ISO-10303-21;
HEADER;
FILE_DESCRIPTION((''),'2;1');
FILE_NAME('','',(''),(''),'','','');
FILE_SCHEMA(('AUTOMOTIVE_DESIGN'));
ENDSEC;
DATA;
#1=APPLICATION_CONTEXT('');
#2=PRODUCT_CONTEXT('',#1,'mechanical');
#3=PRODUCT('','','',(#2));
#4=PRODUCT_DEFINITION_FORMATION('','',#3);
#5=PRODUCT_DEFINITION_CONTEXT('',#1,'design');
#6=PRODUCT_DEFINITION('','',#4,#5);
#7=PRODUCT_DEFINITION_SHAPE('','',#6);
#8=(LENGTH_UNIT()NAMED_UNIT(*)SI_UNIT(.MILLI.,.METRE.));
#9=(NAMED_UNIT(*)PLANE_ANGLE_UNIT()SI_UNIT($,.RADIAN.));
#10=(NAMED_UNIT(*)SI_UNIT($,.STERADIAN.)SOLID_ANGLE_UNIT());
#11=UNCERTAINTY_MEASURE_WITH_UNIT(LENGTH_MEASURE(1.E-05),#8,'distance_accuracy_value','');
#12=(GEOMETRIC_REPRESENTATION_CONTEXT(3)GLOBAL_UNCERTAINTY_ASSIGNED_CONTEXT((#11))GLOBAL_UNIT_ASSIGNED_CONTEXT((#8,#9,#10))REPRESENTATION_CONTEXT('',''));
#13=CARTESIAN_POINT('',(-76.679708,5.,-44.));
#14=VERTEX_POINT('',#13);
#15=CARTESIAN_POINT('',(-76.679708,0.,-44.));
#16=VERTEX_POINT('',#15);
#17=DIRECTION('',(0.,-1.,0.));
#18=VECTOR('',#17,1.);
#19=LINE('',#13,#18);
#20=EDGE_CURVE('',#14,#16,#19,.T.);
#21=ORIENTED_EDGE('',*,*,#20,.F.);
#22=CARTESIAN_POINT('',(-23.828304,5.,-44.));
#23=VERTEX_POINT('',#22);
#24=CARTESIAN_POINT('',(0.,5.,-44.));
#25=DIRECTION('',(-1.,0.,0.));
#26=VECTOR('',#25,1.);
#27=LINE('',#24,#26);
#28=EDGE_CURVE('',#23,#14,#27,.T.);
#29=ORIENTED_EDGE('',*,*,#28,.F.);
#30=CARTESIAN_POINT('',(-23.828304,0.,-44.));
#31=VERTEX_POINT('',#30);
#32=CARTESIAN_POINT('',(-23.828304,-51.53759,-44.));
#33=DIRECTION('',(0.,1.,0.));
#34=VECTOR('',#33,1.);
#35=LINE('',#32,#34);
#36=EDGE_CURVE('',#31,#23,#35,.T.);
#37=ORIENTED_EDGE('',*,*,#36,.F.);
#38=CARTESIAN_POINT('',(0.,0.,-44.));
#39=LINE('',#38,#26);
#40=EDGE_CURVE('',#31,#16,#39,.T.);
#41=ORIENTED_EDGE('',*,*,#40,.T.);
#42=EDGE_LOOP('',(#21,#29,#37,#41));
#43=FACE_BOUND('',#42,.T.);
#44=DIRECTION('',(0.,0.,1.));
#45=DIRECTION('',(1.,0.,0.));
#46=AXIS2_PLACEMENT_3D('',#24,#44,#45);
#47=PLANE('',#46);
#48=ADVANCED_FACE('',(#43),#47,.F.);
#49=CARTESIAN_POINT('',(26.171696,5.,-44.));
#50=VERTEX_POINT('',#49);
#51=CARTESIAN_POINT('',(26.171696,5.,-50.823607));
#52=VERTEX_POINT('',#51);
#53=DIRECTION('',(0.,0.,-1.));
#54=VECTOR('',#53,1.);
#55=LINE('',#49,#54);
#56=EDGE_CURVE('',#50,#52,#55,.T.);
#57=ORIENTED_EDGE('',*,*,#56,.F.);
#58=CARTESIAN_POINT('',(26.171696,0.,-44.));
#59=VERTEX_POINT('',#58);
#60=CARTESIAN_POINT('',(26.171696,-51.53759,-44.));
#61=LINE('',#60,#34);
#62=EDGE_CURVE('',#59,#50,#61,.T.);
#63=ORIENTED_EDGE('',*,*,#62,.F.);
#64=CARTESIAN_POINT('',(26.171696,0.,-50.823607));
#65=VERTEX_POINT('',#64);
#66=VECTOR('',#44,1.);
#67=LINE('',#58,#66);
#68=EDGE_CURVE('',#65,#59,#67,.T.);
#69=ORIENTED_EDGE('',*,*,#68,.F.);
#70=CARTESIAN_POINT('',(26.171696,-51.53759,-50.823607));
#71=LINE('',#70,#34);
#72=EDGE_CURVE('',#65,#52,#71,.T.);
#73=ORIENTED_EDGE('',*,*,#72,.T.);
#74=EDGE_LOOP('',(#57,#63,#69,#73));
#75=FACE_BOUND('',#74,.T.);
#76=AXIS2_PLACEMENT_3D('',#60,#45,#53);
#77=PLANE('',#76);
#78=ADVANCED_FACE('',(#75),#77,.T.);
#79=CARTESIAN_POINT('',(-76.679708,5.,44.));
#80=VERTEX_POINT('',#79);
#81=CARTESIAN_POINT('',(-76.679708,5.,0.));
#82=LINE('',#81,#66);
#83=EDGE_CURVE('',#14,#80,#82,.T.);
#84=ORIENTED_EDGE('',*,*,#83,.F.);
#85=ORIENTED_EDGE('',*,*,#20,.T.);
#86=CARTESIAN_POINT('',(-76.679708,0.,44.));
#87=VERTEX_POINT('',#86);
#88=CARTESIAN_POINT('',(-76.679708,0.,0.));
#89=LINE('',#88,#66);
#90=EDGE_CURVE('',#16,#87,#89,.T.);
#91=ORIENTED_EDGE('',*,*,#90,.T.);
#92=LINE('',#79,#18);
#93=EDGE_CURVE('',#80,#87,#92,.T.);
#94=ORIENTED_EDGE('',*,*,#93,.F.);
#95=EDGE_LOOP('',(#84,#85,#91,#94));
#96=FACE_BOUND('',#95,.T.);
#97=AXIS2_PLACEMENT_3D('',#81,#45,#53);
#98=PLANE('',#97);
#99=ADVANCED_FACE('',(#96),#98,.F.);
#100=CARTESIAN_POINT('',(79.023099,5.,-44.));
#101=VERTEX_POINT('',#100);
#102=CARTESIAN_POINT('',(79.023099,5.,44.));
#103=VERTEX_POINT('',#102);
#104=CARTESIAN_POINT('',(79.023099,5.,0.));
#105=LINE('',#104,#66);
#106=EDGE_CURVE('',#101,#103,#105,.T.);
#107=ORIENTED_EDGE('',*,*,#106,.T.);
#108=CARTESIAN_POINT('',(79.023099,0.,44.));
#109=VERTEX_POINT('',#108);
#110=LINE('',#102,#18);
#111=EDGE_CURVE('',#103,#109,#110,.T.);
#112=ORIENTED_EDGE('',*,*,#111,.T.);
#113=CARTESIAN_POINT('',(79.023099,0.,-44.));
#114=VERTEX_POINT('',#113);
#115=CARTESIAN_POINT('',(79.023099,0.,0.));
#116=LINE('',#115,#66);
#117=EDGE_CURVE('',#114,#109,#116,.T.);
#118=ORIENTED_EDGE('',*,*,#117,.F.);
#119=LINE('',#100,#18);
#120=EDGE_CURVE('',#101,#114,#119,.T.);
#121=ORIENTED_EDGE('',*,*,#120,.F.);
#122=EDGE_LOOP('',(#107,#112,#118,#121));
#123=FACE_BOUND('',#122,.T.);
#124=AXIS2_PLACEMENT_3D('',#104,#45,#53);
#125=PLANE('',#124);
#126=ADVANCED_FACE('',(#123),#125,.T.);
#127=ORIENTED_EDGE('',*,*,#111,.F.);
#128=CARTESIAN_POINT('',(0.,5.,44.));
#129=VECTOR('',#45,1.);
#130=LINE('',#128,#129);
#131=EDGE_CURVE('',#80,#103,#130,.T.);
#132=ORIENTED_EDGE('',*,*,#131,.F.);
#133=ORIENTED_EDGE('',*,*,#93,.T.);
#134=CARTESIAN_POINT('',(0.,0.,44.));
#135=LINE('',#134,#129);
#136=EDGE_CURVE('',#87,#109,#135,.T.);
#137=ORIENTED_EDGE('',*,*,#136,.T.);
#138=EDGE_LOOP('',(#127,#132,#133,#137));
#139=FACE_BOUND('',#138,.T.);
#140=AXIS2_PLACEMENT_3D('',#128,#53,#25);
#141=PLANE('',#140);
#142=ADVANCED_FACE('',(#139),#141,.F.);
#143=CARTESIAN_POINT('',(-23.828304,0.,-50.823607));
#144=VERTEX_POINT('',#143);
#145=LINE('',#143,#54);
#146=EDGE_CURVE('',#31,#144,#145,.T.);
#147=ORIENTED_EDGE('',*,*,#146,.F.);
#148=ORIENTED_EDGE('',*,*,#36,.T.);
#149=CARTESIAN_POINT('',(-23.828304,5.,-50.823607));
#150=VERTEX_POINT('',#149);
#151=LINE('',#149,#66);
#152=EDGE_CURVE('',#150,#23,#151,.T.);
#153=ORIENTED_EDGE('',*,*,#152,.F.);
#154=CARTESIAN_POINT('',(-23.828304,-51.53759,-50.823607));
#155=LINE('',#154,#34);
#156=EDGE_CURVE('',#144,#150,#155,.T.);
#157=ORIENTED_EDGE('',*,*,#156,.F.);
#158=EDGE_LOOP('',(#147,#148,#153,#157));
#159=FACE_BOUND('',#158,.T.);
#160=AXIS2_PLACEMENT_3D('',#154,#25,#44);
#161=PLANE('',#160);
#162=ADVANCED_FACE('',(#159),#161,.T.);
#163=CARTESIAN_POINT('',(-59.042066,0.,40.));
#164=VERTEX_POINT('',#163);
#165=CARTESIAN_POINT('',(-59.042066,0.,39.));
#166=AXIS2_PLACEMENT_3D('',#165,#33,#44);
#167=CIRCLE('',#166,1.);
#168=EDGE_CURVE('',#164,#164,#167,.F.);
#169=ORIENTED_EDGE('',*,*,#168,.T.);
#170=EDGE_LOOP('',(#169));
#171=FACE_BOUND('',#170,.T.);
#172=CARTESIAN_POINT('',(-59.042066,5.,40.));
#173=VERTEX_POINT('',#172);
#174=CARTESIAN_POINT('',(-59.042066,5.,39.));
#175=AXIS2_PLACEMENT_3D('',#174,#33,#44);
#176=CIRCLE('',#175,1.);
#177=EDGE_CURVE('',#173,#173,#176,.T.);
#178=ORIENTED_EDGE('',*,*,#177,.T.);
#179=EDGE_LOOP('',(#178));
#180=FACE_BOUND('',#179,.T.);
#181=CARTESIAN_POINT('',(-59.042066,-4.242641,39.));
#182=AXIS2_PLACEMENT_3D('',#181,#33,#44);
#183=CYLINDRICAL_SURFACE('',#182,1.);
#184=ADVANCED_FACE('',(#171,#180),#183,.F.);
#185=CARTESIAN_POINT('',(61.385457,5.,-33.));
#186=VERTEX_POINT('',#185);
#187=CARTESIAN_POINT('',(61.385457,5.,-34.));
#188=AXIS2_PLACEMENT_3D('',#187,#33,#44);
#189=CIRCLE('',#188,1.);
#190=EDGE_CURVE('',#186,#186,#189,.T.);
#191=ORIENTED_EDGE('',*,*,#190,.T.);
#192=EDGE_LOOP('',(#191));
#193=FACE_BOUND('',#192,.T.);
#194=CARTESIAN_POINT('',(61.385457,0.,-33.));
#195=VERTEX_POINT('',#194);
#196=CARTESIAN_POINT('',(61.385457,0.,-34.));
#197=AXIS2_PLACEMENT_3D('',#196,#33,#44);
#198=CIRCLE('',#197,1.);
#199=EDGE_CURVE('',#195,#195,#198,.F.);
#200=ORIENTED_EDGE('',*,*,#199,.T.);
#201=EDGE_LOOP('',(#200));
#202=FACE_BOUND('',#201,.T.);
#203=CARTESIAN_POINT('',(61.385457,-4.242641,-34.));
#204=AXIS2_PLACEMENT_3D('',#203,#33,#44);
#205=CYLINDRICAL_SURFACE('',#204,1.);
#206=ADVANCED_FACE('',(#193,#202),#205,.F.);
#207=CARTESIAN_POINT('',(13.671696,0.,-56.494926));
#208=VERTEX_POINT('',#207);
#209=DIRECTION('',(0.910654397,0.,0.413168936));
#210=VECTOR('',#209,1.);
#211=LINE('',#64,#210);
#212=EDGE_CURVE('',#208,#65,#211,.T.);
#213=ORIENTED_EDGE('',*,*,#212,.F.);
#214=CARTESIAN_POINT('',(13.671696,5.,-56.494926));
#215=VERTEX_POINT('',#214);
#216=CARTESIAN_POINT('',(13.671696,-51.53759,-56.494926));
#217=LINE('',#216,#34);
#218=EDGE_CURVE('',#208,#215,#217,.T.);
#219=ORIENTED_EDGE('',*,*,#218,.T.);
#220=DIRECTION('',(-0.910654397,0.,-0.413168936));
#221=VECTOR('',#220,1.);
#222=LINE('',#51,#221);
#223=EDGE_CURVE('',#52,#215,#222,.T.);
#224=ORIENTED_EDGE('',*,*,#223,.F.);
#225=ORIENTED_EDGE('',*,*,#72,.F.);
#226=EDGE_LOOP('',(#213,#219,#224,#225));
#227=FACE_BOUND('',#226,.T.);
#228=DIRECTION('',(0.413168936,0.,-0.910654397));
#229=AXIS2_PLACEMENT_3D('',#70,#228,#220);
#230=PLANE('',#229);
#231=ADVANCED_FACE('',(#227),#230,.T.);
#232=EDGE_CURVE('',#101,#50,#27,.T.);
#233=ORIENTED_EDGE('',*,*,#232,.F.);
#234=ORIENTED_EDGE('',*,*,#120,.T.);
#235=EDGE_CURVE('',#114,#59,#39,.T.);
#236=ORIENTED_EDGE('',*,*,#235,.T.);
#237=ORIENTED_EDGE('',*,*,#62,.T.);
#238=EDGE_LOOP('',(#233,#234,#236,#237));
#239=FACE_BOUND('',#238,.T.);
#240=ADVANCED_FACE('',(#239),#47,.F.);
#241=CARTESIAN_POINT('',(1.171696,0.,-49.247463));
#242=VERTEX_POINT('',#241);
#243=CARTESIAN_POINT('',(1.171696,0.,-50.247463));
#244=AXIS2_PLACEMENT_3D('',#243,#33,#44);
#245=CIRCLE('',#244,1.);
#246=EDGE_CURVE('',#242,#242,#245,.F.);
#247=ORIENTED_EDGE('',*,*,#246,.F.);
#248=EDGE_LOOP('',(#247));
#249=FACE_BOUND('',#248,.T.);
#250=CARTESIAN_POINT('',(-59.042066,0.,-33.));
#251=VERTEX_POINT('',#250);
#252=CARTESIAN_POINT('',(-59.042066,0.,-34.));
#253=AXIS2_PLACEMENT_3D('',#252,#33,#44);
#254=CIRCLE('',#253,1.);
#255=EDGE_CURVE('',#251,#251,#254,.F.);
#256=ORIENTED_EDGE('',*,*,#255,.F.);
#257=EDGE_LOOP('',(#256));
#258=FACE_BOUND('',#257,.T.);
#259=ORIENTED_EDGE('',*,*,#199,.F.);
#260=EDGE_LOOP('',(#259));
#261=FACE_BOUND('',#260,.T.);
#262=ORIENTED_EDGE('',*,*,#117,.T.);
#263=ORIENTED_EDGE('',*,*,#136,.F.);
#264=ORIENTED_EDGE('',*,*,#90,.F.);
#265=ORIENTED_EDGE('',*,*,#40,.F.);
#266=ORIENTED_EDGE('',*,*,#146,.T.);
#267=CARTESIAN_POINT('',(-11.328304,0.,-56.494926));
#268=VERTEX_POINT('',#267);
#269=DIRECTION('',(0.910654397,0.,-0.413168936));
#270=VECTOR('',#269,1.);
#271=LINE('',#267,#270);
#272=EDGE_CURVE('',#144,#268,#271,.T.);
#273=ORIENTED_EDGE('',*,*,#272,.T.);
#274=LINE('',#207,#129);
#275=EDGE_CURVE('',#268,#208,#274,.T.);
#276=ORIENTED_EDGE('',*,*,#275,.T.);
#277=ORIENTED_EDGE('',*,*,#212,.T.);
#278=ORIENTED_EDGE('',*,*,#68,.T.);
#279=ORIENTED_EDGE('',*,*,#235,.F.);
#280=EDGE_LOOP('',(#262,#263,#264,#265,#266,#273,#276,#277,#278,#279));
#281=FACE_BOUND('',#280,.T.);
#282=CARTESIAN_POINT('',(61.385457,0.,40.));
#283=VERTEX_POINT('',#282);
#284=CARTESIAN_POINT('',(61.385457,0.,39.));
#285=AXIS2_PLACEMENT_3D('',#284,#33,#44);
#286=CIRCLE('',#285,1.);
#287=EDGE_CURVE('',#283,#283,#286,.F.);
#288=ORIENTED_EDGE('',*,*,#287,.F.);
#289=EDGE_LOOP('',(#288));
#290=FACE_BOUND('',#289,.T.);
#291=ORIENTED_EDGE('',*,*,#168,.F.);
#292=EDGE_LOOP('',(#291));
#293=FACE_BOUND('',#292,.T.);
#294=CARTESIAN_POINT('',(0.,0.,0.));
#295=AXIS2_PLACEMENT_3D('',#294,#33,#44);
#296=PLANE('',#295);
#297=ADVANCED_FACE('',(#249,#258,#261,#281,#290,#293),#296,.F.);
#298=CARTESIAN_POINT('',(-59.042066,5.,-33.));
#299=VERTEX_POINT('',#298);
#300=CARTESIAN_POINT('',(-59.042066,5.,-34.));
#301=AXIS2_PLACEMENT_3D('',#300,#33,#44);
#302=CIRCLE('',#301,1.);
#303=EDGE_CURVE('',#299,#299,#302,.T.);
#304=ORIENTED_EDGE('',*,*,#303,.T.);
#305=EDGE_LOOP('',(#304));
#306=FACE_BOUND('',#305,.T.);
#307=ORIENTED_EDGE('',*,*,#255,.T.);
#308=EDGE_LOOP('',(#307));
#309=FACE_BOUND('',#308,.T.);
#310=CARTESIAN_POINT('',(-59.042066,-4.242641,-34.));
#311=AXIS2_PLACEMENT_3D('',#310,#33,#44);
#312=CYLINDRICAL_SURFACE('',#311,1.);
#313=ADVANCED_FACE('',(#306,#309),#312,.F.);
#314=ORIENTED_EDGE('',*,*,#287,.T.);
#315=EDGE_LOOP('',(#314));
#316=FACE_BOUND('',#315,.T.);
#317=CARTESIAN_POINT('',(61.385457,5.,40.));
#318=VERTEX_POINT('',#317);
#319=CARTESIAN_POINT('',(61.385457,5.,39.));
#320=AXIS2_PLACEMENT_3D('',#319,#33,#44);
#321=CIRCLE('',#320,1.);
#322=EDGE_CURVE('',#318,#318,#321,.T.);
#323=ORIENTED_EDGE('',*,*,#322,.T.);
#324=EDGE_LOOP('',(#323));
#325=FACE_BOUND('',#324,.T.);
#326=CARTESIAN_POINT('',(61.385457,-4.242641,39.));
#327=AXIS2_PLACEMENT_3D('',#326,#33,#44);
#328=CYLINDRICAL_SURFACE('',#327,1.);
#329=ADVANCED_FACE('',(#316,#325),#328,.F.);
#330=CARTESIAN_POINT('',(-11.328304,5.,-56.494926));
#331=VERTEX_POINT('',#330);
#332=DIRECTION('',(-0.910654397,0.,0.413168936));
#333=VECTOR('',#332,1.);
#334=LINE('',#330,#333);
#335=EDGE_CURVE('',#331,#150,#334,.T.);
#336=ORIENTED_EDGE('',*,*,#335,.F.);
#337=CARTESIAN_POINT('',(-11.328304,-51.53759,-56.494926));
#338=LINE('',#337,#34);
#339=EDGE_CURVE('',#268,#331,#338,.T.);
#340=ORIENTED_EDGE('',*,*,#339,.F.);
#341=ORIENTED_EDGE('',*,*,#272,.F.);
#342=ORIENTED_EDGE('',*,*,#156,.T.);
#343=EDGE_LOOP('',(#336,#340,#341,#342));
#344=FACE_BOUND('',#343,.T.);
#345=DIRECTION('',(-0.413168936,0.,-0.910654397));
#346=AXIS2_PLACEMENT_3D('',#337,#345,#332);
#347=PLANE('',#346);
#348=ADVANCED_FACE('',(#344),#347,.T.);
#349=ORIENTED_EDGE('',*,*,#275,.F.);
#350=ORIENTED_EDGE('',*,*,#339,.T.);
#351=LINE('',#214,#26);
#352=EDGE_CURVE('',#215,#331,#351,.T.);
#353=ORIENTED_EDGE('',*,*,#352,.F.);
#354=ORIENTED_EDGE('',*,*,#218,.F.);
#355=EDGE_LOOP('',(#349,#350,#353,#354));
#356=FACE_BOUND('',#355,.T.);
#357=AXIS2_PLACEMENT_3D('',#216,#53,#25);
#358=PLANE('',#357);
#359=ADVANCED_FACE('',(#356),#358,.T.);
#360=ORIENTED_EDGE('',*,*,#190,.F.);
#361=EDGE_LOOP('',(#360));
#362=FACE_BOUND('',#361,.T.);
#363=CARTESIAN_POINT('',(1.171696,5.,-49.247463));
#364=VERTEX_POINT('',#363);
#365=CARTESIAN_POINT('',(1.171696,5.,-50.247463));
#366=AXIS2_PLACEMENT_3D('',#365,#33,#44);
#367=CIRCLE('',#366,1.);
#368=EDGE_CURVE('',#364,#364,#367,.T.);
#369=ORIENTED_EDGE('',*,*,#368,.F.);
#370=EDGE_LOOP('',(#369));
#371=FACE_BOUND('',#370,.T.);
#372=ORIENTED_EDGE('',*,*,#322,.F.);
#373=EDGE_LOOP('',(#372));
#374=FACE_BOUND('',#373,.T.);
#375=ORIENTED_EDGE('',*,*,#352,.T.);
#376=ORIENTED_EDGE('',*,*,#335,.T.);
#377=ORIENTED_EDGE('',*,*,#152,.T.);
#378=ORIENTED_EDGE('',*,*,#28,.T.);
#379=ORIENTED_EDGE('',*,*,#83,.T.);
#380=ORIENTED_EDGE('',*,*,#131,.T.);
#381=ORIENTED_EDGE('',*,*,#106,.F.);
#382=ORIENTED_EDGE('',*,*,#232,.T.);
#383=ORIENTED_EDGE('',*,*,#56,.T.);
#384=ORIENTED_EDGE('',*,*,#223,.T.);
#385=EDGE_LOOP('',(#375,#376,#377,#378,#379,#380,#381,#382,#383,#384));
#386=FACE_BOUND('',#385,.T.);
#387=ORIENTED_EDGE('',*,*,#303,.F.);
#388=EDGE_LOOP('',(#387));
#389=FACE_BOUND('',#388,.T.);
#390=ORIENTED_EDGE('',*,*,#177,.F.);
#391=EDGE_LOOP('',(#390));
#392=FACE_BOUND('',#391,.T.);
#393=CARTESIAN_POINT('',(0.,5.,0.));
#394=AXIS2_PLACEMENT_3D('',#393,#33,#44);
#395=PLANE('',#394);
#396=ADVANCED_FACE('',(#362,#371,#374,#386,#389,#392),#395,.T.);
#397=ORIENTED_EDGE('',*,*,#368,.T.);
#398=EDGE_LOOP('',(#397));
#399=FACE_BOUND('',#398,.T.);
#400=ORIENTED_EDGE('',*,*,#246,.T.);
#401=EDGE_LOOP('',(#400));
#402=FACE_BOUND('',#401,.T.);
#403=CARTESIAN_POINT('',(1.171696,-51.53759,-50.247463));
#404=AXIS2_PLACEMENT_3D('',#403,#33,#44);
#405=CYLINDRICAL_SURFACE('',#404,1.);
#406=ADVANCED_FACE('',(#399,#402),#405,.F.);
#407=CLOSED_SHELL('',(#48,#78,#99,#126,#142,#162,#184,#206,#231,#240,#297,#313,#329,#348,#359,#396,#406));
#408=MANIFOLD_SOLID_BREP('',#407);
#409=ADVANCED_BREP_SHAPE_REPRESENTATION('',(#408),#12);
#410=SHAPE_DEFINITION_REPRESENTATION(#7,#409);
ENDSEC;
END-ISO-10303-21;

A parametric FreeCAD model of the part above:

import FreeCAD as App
import Part
import Sketcher
Q = App.Units.Quantity


def add_polygon(sketch, points):
    """Adds a closed chain of lines whose ends are joined by coincident constraints."""
    first, n = sketch.GeometryCount, len(points)
    for a, b in zip(points, points[1:] + points[:1]):
        sketch.addGeometry(Part.LineSegment(App.Vector(*a, 0), App.Vector(*b, 0)), False)
    for i in range(n):
        sketch.addConstraint(Sketcher.Constraint("Coincident", first + i, 2, first + (i + 1) % n, 1))

doc = App.newDocument("Part")
body = doc.addObject("PartDesign::Body", "Body")

# Sketch on XZ plane
sketch1 = doc.addObject("Sketcher::SketchObject", "Sketch")
body.addObject(sketch1)
sketch1.AttachmentSupport = (doc.XZ_Plane, [""])
sketch1.MapMode = "FlatFace"
add_polygon(sketch1, [(-76.7, -44), (-76.7, 44), (79, 44), (79, -44)])  # lines 0-3
sketch1.addGeometry(Part.Circle(App.Vector(-59, 39, 0), App.Vector(0, 0, 1), 1.5), False)  # 4
sketch1.addGeometry(Part.Circle(App.Vector(61.4, 39, 0), App.Vector(0, 0, 1), 1.5), False)  # 5
sketch1.addGeometry(Part.Circle(App.Vector(-59, -34, 0), App.Vector(0, 0, 1), 1.5), False)  # 6
sketch1.addGeometry(Part.Circle(App.Vector(61.4, -34, 0), App.Vector(0, 0, 1), 1.5), False)  # 7
sketch1.addConstraint(Sketcher.Constraint("Vertical", 0))
sketch1.addConstraint(Sketcher.Constraint("Horizontal", 1))
sketch1.addConstraint(Sketcher.Constraint("Vertical", 2))
sketch1.addConstraint(Sketcher.Constraint("Horizontal", 3))
sketch1.addConstraint(Sketcher.Constraint("Equal", 4, 5))
sketch1.addConstraint(Sketcher.Constraint("Equal", 5, 6))
sketch1.addConstraint(Sketcher.Constraint("Equal", 6, 7))
sketch1.addConstraint(Sketcher.Constraint("Horizontal", 4, 3, 5, 3))
sketch1.addConstraint(Sketcher.Constraint("Horizontal", 6, 3, 7, 3))
sketch1.addConstraint(Sketcher.Constraint("Vertical", 4, 3, 6, 3))
sketch1.addConstraint(Sketcher.Constraint("Vertical", 5, 3, 7, 3))
sketch1.addConstraint(Sketcher.Constraint("Diameter", 4, Q("3 mm")))
sketch1.addConstraint(Sketcher.Constraint("DistanceY", 0, 1, 0, 2, Q("88 mm")))
sketch1.addConstraint(Sketcher.Constraint("DistanceY", -1, 1, 4, 3, Q("39 mm")))
sketch1.addConstraint(Sketcher.Constraint("DistanceY", 6, 3, -1, 1, Q("34 mm")))
sketch1.addConstraint(Sketcher.Constraint("DistanceY", -1, 1, 0, 2, Q("44 mm")))
sketch1.addConstraint(Sketcher.Constraint("DistanceX", -1, 1, 1, 2, Q("79.023099 mm")))
sketch1.addConstraint(Sketcher.Constraint("DistanceX", 1, 1, 1, 2, Q("155.702807 mm")))
sketch1.addConstraint(Sketcher.Constraint("DistanceX", 4, 3, -1, 1, Q("59.042066 mm")))
sketch1.addConstraint(Sketcher.Constraint("DistanceX", -1, 1, 5, 3, Q("61.385457 mm")))
pad1 = doc.addObject("PartDesign::Pad", "Pad")
body.addObject(pad1)
pad1.Profile = sketch1
pad1.Length = 5
pad1.Reversed = True

# Sketch on XZ plane
sketch2 = doc.addObject("Sketcher::SketchObject", "Sketch001")
body.addObject(sketch2)
sketch2.AttachmentSupport = (doc.XZ_Plane, [""])
sketch2.MapMode = "FlatFace"
sketch2.AttachmentOffset = App.Placement(App.Vector(0, 0, -5), App.Rotation())
add_polygon(sketch2, [(-23.8, -44), (26.2, -44), (26.2, -50.8), (13.7, -56.5), (-11.3, -56.5), (-23.8, -50.8)])  # lines 0-5
sketch2.addGeometry(Part.Circle(App.Vector(1.2, -50.2, 0), App.Vector(0, 0, 1), 1), False)  # 6
sketch2.addConstraint(Sketcher.Constraint("Horizontal", 0))
sketch2.addConstraint(Sketcher.Constraint("Vertical", 1))
sketch2.addConstraint(Sketcher.Constraint("Horizontal", 3))
sketch2.addConstraint(Sketcher.Constraint("Vertical", 5))
sketch2.addConstraint(Sketcher.Constraint("Horizontal", 1, 2, 4, 2))
sketch2.addConstraint(Sketcher.Constraint("Equal", 2, 4))
sketch2.addConstraint(Sketcher.Constraint("Diameter", 6, Q("2 mm")))
sketch2.addConstraint(Sketcher.Constraint("DistanceX", 0, 1, 0, 2, Q("50 mm")))
sketch2.addConstraint(Sketcher.Constraint("DistanceX", 3, 2, 3, 1, Q("25 mm")))
sketch2.addConstraint(Sketcher.Constraint("DistanceY", 0, 2, -1, 1, Q("44 mm")))
sketch2.addConstraint(Sketcher.Constraint("DistanceX", 6, 3, 0, 2, Q("25 mm")))
sketch2.addConstraint(Sketcher.Constraint("DistanceY", 1, 2, 1, 1, Q("6.823607 mm")))
sketch2.addConstraint(Sketcher.Constraint("DistanceY", 2, 2, 1, 2, Q("5.671319 mm")))
sketch2.addConstraint(Sketcher.Constraint("DistanceX", -1, 1, 6, 3, Q("1.171696 mm")))
sketch2.addConstraint(Sketcher.Constraint("DistanceY", 6, 3, -1, 1, Q("50.247463 mm")))
pad2 = doc.addObject("PartDesign::Pad", "Pad001")
body.addObject(pad2)
pad2.Profile = sketch2
pad2.Length = 5

# Sketch on XZ plane
sketch3 = doc.addObject("Sketcher::SketchObject", "Sketch002")
body.addObject(sketch3)
sketch3.AttachmentSupport = (doc.XZ_Plane, [""])
sketch3.MapMode = "FlatFace"
sketch3.AttachmentOffset = App.Placement(App.Vector(0, 0, -5), App.Rotation())
sketch3.addGeometry(Part.Circle(App.Vector(61.4, -34, 0), App.Vector(0, 0, 1), 1.5), False)
sketch3.addGeometry(Part.Circle(App.Vector(61.4, -34, 0), App.Vector(0, 0, 1), 1), False)
sketch3.addGeometry(Part.Circle(App.Vector(61.4, 39, 0), App.Vector(0, 0, 1), 1.5), False)
sketch3.addGeometry(Part.Circle(App.Vector(61.4, 39, 0), App.Vector(0, 0, 1), 1), False)
sketch3.addGeometry(Part.Circle(App.Vector(-59, 39, 0), App.Vector(0, 0, 1), 1.5), False)
sketch3.addGeometry(Part.Circle(App.Vector(-59, 39, 0), App.Vector(0, 0, 1), 1), False)
sketch3.addGeometry(Part.Circle(App.Vector(-59, -34, 0), App.Vector(0, 0, 1), 1.5), False)
sketch3.addGeometry(Part.Circle(App.Vector(-59, -34, 0), App.Vector(0, 0, 1), 1), False)
sketch3.addConstraint(Sketcher.Constraint("Coincident", 1, 3, 0, 3))
sketch3.addConstraint(Sketcher.Constraint("Coincident", 3, 3, 2, 3))
sketch3.addConstraint(Sketcher.Constraint("Coincident", 5, 3, 4, 3))
sketch3.addConstraint(Sketcher.Constraint("Coincident", 7, 3, 6, 3))
sketch3.addConstraint(Sketcher.Constraint("Equal", 0, 2))
sketch3.addConstraint(Sketcher.Constraint("Equal", 1, 3))
sketch3.addConstraint(Sketcher.Constraint("Equal", 2, 4))
sketch3.addConstraint(Sketcher.Constraint("Equal", 3, 5))
sketch3.addConstraint(Sketcher.Constraint("Equal", 4, 6))
sketch3.addConstraint(Sketcher.Constraint("Equal", 5, 7))
sketch3.addConstraint(Sketcher.Constraint("Horizontal", 3, 3, 4, 3))
sketch3.addConstraint(Sketcher.Constraint("Horizontal", 1, 3, 6, 3))
sketch3.addConstraint(Sketcher.Constraint("Vertical", 1, 3, 2, 3))
sketch3.addConstraint(Sketcher.Constraint("Vertical", 5, 3, 6, 3))
sketch3.addConstraint(Sketcher.Constraint("Diameter", 0, Q("3 mm")))
sketch3.addConstraint(Sketcher.Constraint("Diameter", 1, Q("2 mm")))
sketch3.addConstraint(Sketcher.Constraint("DistanceY", 0, 3, -1, 1, Q("34 mm")))
sketch3.addConstraint(Sketcher.Constraint("DistanceY", -1, 1, 2, 3, Q("39 mm")))
sketch3.addConstraint(Sketcher.Constraint("DistanceX", -1, 1, 0, 3, Q("61.385457 mm")))
sketch3.addConstraint(Sketcher.Constraint("DistanceX", 4, 3, -1, 1, Q("59.042066 mm")))
pad3 = doc.addObject("PartDesign::Pad", "Pad002")
body.addObject(pad3)
pad3.Profile = sketch3
pad3.Length = 5

doc.recompute()
